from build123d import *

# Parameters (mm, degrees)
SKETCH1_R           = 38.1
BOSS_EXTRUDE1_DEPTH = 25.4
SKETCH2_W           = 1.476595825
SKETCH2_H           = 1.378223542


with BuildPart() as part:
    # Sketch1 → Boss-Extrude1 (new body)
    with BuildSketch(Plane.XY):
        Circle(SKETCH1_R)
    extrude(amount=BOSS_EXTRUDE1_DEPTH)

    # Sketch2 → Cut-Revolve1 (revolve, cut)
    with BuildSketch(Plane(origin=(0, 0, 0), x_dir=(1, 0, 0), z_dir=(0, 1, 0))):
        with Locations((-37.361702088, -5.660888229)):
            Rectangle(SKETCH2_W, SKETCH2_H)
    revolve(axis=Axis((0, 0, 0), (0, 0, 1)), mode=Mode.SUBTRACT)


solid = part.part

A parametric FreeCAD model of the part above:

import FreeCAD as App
import Part
import Sketcher
from FreeCAD import Vector
Q = App.Units.Quantity


def add_polygon(sketch, points):
    """Adds a closed chain of lines whose ends are joined by coincident constraints."""
    first, n = sketch.GeometryCount, len(points)
    for a, b in zip(points, points[1:] + points[:1]):
        sketch.addGeometry(Part.LineSegment(App.Vector(*a, 0), App.Vector(*b, 0)), False)
    for i in range(n):
        sketch.addConstraint(Sketcher.Constraint("Coincident", first + i, 2, first + (i + 1) % n, 1))

doc = App.newDocument("Part")
body = doc.addObject("PartDesign::Body", "Body")

# Sketch on XY plane
sketch1 = body.newObject("Sketcher::SketchObject", "Sketch")
sketch1.AttachmentSupport = (doc.getObject("XY_Plane"), [""])
sketch1.MapMode = "FlatFace"
sketch1.addGeometry(Part.Circle(Vector(0, 0, 0), Vector(0, 0, 1), 38), False)
sketch1.addConstraint(Sketcher.Constraint("Coincident", 0, 3, -1, 1))
sketch1.addConstraint(Sketcher.Constraint("Diameter", 0, Q("3 in")))
pad1 = body.newObject("PartDesign::Pad", "Pad")
pad1.Profile = sketch1
pad1.Length = Q("1 in")

# Sketch on XZ plane
sketch2 = body.newObject("Sketcher::SketchObject", "Sketch001")
sketch2.AttachmentSupport = (doc.getObject("XZ_Plane"), [""])
sketch2.MapMode = "FlatFace"
add_polygon(sketch2, [(-38.1, 5), (-38.1, 6.3), (-36.6, 6.3), (-36.6, 5)])  # lines 0-3
sketch2.addConstraint(Sketcher.Constraint("Vertical", 0))
sketch2.addConstraint(Sketcher.Constraint("Horizontal", 1))
sketch2.addConstraint(Sketcher.Constraint("Vertical", 2))
sketch2.addConstraint(Sketcher.Constraint("Horizontal", 3))
sketch2.addConstraint(Sketcher.Constraint("DistanceX", 0, 2, -1, 1, Q("1.5 in")))
sketch2.addConstraint(Sketcher.Constraint("DistanceY", -1, 1, 0, 2, Q("0.25 in")))
sketch2.addConstraint(Sketcher.Constraint("DistanceX", 1, 1, 1, 2, Q("1.476596 mm")))
sketch2.addConstraint(Sketcher.Constraint("DistanceY", 0, 1, 0, 2, Q("1.378224 mm")))
groove = body.newObject("PartDesign::Groove", "Groove")
groove.Profile = sketch2
groove.ReferenceAxis = (sketch2, ["V_Axis"])
groove.Angle = 360

doc.recompute()
